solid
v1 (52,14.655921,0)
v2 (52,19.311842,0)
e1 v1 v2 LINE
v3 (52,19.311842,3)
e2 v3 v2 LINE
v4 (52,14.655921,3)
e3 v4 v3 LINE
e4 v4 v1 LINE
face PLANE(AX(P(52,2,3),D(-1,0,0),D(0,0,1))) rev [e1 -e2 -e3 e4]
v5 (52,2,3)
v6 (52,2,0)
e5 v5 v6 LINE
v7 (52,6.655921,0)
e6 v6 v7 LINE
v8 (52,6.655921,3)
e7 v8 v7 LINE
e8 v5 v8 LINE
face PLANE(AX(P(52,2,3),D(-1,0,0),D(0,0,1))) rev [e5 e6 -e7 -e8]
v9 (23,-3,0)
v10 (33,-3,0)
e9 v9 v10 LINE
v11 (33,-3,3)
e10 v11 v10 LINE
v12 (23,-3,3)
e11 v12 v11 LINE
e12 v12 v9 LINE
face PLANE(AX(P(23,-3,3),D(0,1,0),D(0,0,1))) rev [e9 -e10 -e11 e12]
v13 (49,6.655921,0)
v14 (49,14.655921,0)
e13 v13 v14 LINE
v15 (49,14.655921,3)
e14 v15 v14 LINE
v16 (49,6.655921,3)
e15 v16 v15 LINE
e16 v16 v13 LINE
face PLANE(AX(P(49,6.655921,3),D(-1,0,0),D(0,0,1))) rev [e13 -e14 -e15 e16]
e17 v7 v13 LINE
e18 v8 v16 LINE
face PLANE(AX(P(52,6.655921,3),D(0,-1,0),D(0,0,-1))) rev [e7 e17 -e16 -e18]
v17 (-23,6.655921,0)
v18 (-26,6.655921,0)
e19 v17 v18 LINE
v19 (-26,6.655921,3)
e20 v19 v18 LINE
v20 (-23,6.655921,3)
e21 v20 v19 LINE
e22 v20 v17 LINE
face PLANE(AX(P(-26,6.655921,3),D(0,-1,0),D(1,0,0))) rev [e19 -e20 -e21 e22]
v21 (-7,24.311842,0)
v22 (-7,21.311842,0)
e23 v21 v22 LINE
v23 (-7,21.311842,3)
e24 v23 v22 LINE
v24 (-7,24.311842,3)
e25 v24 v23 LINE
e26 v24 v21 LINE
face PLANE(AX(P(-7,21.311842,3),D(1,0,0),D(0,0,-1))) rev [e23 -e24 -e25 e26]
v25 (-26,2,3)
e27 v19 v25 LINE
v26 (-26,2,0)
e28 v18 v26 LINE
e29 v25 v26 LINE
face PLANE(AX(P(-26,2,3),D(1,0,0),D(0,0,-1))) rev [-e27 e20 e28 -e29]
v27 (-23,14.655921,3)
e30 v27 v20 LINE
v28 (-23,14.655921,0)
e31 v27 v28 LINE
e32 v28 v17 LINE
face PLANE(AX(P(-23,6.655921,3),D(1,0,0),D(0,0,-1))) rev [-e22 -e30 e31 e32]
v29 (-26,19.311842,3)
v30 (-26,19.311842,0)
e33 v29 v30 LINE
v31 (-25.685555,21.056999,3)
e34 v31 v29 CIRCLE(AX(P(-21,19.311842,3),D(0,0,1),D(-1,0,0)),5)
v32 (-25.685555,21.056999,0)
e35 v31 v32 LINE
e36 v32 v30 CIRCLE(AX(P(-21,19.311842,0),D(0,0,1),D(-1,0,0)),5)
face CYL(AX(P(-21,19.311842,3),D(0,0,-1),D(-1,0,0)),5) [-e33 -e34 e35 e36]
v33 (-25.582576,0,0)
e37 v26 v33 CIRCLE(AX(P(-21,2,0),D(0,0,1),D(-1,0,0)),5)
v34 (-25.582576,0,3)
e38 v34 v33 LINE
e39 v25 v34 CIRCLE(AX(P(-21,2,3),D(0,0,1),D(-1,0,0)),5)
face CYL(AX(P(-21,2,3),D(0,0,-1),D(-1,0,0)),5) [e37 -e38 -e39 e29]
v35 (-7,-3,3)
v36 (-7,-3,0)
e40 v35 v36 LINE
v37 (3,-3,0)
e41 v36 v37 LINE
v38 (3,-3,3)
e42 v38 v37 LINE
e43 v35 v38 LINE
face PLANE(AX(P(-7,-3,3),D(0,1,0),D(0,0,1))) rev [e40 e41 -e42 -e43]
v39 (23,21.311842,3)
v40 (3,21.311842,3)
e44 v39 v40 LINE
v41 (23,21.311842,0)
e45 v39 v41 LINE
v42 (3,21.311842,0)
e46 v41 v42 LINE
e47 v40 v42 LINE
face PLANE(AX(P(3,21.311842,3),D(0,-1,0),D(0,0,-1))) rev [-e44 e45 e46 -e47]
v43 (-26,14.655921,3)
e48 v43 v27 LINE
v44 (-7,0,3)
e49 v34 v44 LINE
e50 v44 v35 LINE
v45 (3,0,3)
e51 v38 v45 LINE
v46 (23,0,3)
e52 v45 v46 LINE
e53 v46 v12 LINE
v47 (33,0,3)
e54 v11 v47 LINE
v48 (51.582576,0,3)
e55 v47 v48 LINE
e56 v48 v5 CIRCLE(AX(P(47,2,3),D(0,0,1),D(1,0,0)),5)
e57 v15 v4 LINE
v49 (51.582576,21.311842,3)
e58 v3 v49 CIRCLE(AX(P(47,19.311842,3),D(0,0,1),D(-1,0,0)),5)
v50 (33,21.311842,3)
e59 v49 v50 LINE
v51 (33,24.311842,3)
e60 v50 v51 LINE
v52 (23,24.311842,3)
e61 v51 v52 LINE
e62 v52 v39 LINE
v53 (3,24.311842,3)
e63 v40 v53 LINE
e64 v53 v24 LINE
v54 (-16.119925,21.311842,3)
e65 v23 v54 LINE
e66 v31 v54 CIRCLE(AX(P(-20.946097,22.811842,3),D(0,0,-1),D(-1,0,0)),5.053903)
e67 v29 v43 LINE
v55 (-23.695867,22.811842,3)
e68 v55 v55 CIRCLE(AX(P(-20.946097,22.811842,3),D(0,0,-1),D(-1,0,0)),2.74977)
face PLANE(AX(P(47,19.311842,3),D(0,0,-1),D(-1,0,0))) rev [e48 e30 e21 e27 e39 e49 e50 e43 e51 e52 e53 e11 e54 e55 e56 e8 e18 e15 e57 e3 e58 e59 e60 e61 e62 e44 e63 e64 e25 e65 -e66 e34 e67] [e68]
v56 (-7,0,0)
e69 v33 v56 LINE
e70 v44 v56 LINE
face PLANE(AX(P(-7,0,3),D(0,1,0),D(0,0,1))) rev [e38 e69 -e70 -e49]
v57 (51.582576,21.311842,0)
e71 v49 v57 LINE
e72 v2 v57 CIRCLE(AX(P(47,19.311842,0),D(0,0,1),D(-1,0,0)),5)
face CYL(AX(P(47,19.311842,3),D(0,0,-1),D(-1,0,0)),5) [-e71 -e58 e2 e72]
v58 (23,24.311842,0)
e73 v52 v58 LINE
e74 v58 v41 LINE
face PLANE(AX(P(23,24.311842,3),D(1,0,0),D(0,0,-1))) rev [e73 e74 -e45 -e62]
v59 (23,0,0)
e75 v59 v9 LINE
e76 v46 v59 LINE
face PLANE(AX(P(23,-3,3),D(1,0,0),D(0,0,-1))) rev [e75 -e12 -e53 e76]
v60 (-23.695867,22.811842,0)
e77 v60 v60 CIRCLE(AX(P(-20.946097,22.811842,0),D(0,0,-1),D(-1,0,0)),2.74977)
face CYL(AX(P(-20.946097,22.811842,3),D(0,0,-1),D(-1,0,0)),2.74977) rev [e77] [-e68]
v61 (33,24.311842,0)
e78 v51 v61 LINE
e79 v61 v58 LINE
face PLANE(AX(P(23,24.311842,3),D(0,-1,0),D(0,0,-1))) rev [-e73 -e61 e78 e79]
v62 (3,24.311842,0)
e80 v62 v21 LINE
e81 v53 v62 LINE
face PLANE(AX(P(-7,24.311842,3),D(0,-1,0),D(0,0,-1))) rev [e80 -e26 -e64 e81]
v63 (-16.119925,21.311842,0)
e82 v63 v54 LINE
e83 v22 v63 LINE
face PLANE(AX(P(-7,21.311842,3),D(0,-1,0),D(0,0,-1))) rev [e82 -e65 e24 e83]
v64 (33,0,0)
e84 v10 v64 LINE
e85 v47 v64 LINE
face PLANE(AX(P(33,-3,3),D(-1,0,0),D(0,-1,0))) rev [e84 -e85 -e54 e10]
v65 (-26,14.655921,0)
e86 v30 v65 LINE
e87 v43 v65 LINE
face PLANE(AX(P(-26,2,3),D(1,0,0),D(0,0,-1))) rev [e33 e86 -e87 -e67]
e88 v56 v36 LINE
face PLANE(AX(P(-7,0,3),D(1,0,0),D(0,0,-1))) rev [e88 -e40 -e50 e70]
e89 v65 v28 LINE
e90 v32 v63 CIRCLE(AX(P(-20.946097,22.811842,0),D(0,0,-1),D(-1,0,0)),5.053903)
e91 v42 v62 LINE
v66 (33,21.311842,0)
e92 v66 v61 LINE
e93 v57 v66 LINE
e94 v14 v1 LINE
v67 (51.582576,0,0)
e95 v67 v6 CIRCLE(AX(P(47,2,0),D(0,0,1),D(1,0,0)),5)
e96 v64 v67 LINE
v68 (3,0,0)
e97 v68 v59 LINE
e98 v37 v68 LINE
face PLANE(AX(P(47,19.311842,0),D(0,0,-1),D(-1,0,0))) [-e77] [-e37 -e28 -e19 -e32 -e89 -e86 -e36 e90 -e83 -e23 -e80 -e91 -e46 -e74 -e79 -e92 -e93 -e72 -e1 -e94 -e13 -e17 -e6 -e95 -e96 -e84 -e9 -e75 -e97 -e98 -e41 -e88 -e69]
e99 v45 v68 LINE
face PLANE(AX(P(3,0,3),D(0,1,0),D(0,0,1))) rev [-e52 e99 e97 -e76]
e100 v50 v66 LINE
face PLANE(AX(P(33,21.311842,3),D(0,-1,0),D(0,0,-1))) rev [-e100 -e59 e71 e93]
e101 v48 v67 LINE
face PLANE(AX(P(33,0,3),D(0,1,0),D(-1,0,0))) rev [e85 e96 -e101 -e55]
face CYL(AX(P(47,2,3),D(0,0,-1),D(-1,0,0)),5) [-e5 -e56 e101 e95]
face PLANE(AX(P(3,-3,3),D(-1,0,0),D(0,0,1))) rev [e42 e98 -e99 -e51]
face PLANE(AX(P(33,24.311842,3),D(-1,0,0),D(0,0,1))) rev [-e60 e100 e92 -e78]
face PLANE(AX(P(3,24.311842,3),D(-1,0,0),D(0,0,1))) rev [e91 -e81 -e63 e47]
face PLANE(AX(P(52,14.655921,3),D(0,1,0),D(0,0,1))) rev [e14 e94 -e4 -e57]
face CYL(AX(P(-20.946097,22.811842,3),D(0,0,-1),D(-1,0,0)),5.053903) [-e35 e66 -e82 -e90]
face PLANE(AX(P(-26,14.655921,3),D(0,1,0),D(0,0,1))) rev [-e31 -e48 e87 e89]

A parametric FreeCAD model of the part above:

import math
import FreeCAD as App
import Part
import Sketcher

V = App.Vector
Q = App.Units.Quantity


def add_polygon(sketch, points):
    """Adds a closed chain of lines whose ends are joined by coincident constraints."""
    first, n = sketch.GeometryCount, len(points)
    for a, b in zip(points, points[1:] + points[:1]):
        sketch.addGeometry(Part.LineSegment(App.Vector(*a, 0), App.Vector(*b, 0)), False)
    for i in range(n):
        sketch.addConstraint(Sketcher.Constraint("Coincident", first + i, 2, first + (i + 1) % n, 1))

doc = App.newDocument("Part")
params = doc.addObject("Spreadsheet::Sheet", "Params")
for row, (alias, value) in enumerate([
    ("sketch1_radius", "5 mm"),
    ("sketch1_width", "10 mm"),
    ("sketch1_width2", "20 mm"),
    ("sketch1_height", "3 mm"),
    ("pad1_length", "3 mm"),
    ("pad2_length", "3 mm"),
    ("pocket1_length", "3 mm"),
    ("sketch4_width", "3 mm"),
    ("sketch4_height", "8 mm"),
    ("pocket2_length", "3 mm"),
], start=1):
    params.set(f"A{row}", alias)
    params.set(f"B{row}", "=" + value)
    params.setAlias(f"B{row}", alias)

body = doc.addObject("PartDesign::Body", "Body")

# Sketch on XY plane
sketch1 = body.newObject("Sketcher::SketchObject", "Sketch")
sketch1.AttachmentSupport = (doc.getObject("XY_Plane"), [""])
sketch1.MapMode = "FlatFace"
sketch1.addGeometry([
    Part.LineSegment(V(-7, -3, 0), V(3, -3, 0)),  # 0
    Part.LineSegment(V(3, -3, 0), V(3, 0, 0)),  # 1
    Part.LineSegment(V(3, 0, 0), V(23, 0, 0)),  # 2
    Part.LineSegment(V(23, 0, 0), V(23, -3, 0)),  # 3
    Part.LineSegment(V(23, -3, 0), V(33, -3, 0)),  # 4
    Part.LineSegment(V(33, -3, 0), V(33, 0, 0)),  # 5
    Part.LineSegment(V(33, 0, 0), V(51.6, 0, 0)),  # 6
    Part.ArcOfCircle(Part.Circle(V(47, 2, 0), V(0, 0, 1), 5), math.radians(-24), math.radians(0)),  # 7
    Part.LineSegment(V(52, 2, 0), V(52, 19.3, 0)),  # 8
    Part.ArcOfCircle(Part.Circle(V(47, 19.3, 0), V(0, 0, 1), 5), math.radians(0), math.radians(24)),  # 9
    Part.LineSegment(V(51.6, 21.3, 0), V(33, 21.3, 0)),  # 10
    Part.LineSegment(V(33, 21.3, 0), V(33, 24.3, 0)),  # 11
    Part.LineSegment(V(33, 24.3, 0), V(23, 24.3, 0)),  # 12
    Part.LineSegment(V(23, 24.3, 0), V(23, 21.3, 0)),  # 13
    Part.LineSegment(V(23, 21.3, 0), V(3, 21.3, 0)),  # 14
    Part.LineSegment(V(3, 21.3, 0), V(3, 24.3, 0)),  # 15
    Part.LineSegment(V(3, 24.3, 0), V(-7, 24.3, 0)),  # 16
    Part.LineSegment(V(-7, 24.3, 0), V(-7, 21.3, 0)),  # 17
    Part.LineSegment(V(-7, 21.3, 0), V(-25.6, 21.3, 0)),  # 18
    Part.ArcOfCircle(Part.Circle(V(-21, 19.3, 0), V(0, 0, 1), 5), math.radians(156), math.radians(180)),  # 19
    Part.LineSegment(V(-26, 19.3, 0), V(-26, 2, 0)),  # 20
    Part.ArcOfCircle(Part.Circle(V(-21, 2, 0), V(0, 0, 1), 5), math.radians(180), math.radians(204)),  # 21
    Part.LineSegment(V(-25.6, 0, 0), V(-7, 0, 0)),  # 22
    Part.LineSegment(V(-7, 0, 0), V(-7, -3, 0)),  # 23
], False)
sketch1.addConstraint([
    Sketcher.Constraint("Coincident", 0, 2, 1, 1),
    Sketcher.Constraint("Coincident", 1, 2, 2, 1),
    Sketcher.Constraint("Coincident", 2, 2, 3, 1),
    Sketcher.Constraint("Coincident", 3, 2, 4, 1),
    Sketcher.Constraint("Coincident", 4, 2, 5, 1),
    Sketcher.Constraint("Coincident", 5, 2, 6, 1),
    Sketcher.Constraint("Coincident", 6, 2, 7, 1),
    Sketcher.Constraint("Tangent", 7, 2, 8, 1),
    Sketcher.Constraint("Tangent", 8, 2, 9, 1),
    Sketcher.Constraint("Coincident", 9, 2, 10, 1),
    Sketcher.Constraint("Coincident", 10, 2, 11, 1),
    Sketcher.Constraint("Coincident", 11, 2, 12, 1),
    Sketcher.Constraint("Coincident", 12, 2, 13, 1),
    Sketcher.Constraint("Coincident", 13, 2, 14, 1),
    Sketcher.Constraint("Coincident", 14, 2, 15, 1),
    Sketcher.Constraint("Coincident", 15, 2, 16, 1),
    Sketcher.Constraint("Coincident", 16, 2, 17, 1),
    Sketcher.Constraint("Coincident", 17, 2, 18, 1),
    Sketcher.Constraint("Coincident", 18, 2, 19, 1),
    Sketcher.Constraint("Tangent", 19, 2, 20, 1),
    Sketcher.Constraint("Tangent", 20, 2, 21, 1),
    Sketcher.Constraint("Coincident", 21, 2, 22, 1),
    Sketcher.Constraint("Coincident", 22, 2, 23, 1),
    Sketcher.Constraint("Coincident", 23, 2, 0, 1),
    Sketcher.Constraint("Horizontal", 0),
    Sketcher.Constraint("Vertical", 1),
    Sketcher.Constraint("Horizontal", 2),
    Sketcher.Constraint("Vertical", 3),
    Sketcher.Constraint("Horizontal", 4),
    Sketcher.Constraint("Vertical", 5),
    Sketcher.Constraint("Horizontal", 6),
    Sketcher.Constraint("Vertical", 8),
    Sketcher.Constraint("Horizontal", 10),
    Sketcher.Constraint("Vertical", 11),
    Sketcher.Constraint("Horizontal", 12),
    Sketcher.Constraint("Vertical", 13),
    Sketcher.Constraint("Horizontal", 14),
    Sketcher.Constraint("Vertical", 15),
    Sketcher.Constraint("Horizontal", 16),
    Sketcher.Constraint("Vertical", 17),
    Sketcher.Constraint("Horizontal", 18),
    Sketcher.Constraint("Vertical", 20),
    Sketcher.Constraint("Horizontal", 22),
    Sketcher.Constraint("Vertical", 23),
    Sketcher.Constraint("Equal", 7, 9),
    Sketcher.Constraint("Equal", 9, 19),
    Sketcher.Constraint("Equal", 19, 21),
    Sketcher.Constraint("PointOnObject", 1, 2, -1),
    Sketcher.Constraint("PointOnObject", 5, 2, -1),
    Sketcher.Constraint("PointOnObject", 21, 2, -1),
    Sketcher.Constraint("Horizontal", 9, 3, 19, 3),
    Sketcher.Constraint("Horizontal", 7, 3, 21, 3),
    Sketcher.Constraint("Horizontal", 0, 2, 3, 2),
    Sketcher.Constraint("Horizontal", 10, 2, 13, 2),
    Sketcher.Constraint("Horizontal", 12, 2, 15, 2),
    Sketcher.Constraint("Horizontal", 14, 2, 17, 2),
    Sketcher.Constraint("Vertical", 6, 2, 9, 2),
    Sketcher.Constraint("Vertical", 5, 2, 10, 2),
    Sketcher.Constraint("Vertical", 3, 2, 12, 2),
    Sketcher.Constraint("Vertical", 1, 2, 14, 2),
    Sketcher.Constraint("Vertical", 17, 2, 22, 2),
    Sketcher.Constraint("Equal", 0, 4),
    Sketcher.Constraint("Equal", 10, 18),
    Sketcher.Constraint("Equal", 5, 11),
    Sketcher.Constraint("Radius", 7, Q("5 mm")),
    Sketcher.Constraint("DistanceX", 0, 1, 0, 2, Q("10 mm")),
    Sketcher.Constraint("DistanceX", 2, 1, 2, 2, Q("20 mm")),
    Sketcher.Constraint("DistanceY", 1, 1, 1, 2, Q("3 mm")),
    Sketcher.Constraint("DistanceX", -1, 1, 7, 3, Q("47 mm")),
    Sketcher.Constraint("DistanceY", -1, 1, 7, 3, Q("2 mm")),
    Sketcher.Constraint("DistanceX", 19, 3, -1, 1, Q("21 mm")),
    Sketcher.Constraint("DistanceY", 8, 1, 8, 2, Q("17.311842 mm")),
])
sketch1.setExpression("Constraints[64]", "Params.sketch1_radius")
sketch1.setExpression("Constraints[65]", "Params.sketch1_width")
sketch1.setExpression("Constraints[66]", "Params.sketch1_width2")
sketch1.setExpression("Constraints[67]", "Params.sketch1_height")
pad1 = body.newObject("PartDesign::Pad", "Pad")
pad1.Profile = sketch1
pad1.setExpression("Length", "Params.pad1_length")

# Sketch on XY plane
sketch2 = body.newObject("Sketcher::SketchObject", "Sketch001")
sketch2.AttachmentSupport = (doc.getObject("XY_Plane"), [""])
sketch2.MapMode = "FlatFace"
sketch2.addGeometry([
    Part.Circle(V(-20.9, 22.8, 0), V(0, 0, 1), 5.1),
    Part.Circle(V(-20.9, 22.8, 0), V(0, 0, 1), 2.7),
], False)
sketch2.addConstraint([
    Sketcher.Constraint("Coincident", 1, 3, 0, 3),
    Sketcher.Constraint("Diameter", 1, Q("5.49954 mm")),
    Sketcher.Constraint("Diameter", 0, Q("10.107806 mm")),
    Sketcher.Constraint("DistanceY", -1, 1, 0, 3, Q("22.811842 mm")),
    Sketcher.Constraint("DistanceX", 0, 3, -1, 1, Q("20.946097 mm")),
])
pad2 = body.newObject("PartDesign::Pad", "Pad001")
pad2.Profile = sketch2
pad2.setExpression("Length", "Params.pad2_length")

# Sketch on XY plane
sketch3 = body.newObject("Sketcher::SketchObject", "Sketch002")
sketch3.AttachmentSupport = (doc.getObject("XY_Plane"), [""])
sketch3.MapMode = "FlatFace"
sketch3.addGeometry([
    Part.LineSegment(V(-23.3, 21.3, 0), V(-18.6, 21.3, 0)),
    Part.ArcOfCircle(Part.Circle(V(-20.9, 22.8, 0), V(0, 0, 1), 2.7), math.radians(-147), math.radians(-33)),
], False)
sketch3.addConstraint([
    Sketcher.Constraint("Coincident", 0, 1, 1, 1),
    Sketcher.Constraint("Coincident", 1, 2, 0, 2),
    Sketcher.Constraint("Horizontal", 0),
    Sketcher.Constraint("DistanceY", 0, 1, 1, 3, Q("1.5 mm")),
    Sketcher.Constraint("Radius", 1, Q("2.74977 mm")),
    Sketcher.Constraint("DistanceY", -1, 1, 1, 3, Q("22.811842 mm")),
    Sketcher.Constraint("DistanceX", 0, 1, -1, 1, Q("23.250709 mm")),
])
pocket1 = body.newObject("PartDesign::Pocket", "Pocket")
pocket1.Profile = sketch3
pocket1.setExpression("Length", "Params.pocket1_length")
pocket1.Reversed = True

# Sketch on XY plane
sketch4 = body.newObject("Sketcher::SketchObject", "Sketch003")
sketch4.AttachmentSupport = (doc.getObject("XY_Plane"), [""])
sketch4.MapMode = "FlatFace"
add_polygon(sketch4, [(-23, 14.7), (-23, 6.7), (-26, 6.7), (-26, 14.7)])  # lines 0-3
add_polygon(sketch4, [(52, 14.7), (52, 6.7), (49, 6.7), (49, 14.7)])  # lines 4-7
sketch4.addConstraint([
    Sketcher.Constraint("Vertical", 0),
    Sketcher.Constraint("Horizontal", 1),
    Sketcher.Constraint("Vertical", 2),
    Sketcher.Constraint("Horizontal", 3),
    Sketcher.Constraint("Vertical", 4),
    Sketcher.Constraint("Horizontal", 5),
    Sketcher.Constraint("Vertical", 6),
    Sketcher.Constraint("Horizontal", 7),
    Sketcher.Constraint("Horizontal", 1, 2, 4, 2),
    Sketcher.Constraint("Horizontal", 3, 2, 6, 2),
    Sketcher.Constraint("Equal", 3, 5),
    Sketcher.Constraint("DistanceX", 1, 2, 1, 1, Q("3 mm")),
    Sketcher.Constraint("DistanceY", 0, 2, 0, 1, Q("8 mm")),
    Sketcher.Constraint("DistanceX", 0, 2, -1, 1, Q("23 mm")),
    Sketcher.Constraint("DistanceX", -1, 1, 4, 2, Q("52 mm")),
    Sketcher.Constraint("DistanceY", -1, 1, 0, 2, Q("6.655921 mm")),
])
sketch4.setExpression("Constraints[19]", "Params.sketch4_width")
sketch4.setExpression("Constraints[20]", "Params.sketch4_height")
pocket2 = body.newObject("PartDesign::Pocket", "Pocket001")
pocket2.Profile = sketch4
pocket2.setExpression("Length", "Params.pocket2_length")
pocket2.Reversed = True

doc.recompute()
